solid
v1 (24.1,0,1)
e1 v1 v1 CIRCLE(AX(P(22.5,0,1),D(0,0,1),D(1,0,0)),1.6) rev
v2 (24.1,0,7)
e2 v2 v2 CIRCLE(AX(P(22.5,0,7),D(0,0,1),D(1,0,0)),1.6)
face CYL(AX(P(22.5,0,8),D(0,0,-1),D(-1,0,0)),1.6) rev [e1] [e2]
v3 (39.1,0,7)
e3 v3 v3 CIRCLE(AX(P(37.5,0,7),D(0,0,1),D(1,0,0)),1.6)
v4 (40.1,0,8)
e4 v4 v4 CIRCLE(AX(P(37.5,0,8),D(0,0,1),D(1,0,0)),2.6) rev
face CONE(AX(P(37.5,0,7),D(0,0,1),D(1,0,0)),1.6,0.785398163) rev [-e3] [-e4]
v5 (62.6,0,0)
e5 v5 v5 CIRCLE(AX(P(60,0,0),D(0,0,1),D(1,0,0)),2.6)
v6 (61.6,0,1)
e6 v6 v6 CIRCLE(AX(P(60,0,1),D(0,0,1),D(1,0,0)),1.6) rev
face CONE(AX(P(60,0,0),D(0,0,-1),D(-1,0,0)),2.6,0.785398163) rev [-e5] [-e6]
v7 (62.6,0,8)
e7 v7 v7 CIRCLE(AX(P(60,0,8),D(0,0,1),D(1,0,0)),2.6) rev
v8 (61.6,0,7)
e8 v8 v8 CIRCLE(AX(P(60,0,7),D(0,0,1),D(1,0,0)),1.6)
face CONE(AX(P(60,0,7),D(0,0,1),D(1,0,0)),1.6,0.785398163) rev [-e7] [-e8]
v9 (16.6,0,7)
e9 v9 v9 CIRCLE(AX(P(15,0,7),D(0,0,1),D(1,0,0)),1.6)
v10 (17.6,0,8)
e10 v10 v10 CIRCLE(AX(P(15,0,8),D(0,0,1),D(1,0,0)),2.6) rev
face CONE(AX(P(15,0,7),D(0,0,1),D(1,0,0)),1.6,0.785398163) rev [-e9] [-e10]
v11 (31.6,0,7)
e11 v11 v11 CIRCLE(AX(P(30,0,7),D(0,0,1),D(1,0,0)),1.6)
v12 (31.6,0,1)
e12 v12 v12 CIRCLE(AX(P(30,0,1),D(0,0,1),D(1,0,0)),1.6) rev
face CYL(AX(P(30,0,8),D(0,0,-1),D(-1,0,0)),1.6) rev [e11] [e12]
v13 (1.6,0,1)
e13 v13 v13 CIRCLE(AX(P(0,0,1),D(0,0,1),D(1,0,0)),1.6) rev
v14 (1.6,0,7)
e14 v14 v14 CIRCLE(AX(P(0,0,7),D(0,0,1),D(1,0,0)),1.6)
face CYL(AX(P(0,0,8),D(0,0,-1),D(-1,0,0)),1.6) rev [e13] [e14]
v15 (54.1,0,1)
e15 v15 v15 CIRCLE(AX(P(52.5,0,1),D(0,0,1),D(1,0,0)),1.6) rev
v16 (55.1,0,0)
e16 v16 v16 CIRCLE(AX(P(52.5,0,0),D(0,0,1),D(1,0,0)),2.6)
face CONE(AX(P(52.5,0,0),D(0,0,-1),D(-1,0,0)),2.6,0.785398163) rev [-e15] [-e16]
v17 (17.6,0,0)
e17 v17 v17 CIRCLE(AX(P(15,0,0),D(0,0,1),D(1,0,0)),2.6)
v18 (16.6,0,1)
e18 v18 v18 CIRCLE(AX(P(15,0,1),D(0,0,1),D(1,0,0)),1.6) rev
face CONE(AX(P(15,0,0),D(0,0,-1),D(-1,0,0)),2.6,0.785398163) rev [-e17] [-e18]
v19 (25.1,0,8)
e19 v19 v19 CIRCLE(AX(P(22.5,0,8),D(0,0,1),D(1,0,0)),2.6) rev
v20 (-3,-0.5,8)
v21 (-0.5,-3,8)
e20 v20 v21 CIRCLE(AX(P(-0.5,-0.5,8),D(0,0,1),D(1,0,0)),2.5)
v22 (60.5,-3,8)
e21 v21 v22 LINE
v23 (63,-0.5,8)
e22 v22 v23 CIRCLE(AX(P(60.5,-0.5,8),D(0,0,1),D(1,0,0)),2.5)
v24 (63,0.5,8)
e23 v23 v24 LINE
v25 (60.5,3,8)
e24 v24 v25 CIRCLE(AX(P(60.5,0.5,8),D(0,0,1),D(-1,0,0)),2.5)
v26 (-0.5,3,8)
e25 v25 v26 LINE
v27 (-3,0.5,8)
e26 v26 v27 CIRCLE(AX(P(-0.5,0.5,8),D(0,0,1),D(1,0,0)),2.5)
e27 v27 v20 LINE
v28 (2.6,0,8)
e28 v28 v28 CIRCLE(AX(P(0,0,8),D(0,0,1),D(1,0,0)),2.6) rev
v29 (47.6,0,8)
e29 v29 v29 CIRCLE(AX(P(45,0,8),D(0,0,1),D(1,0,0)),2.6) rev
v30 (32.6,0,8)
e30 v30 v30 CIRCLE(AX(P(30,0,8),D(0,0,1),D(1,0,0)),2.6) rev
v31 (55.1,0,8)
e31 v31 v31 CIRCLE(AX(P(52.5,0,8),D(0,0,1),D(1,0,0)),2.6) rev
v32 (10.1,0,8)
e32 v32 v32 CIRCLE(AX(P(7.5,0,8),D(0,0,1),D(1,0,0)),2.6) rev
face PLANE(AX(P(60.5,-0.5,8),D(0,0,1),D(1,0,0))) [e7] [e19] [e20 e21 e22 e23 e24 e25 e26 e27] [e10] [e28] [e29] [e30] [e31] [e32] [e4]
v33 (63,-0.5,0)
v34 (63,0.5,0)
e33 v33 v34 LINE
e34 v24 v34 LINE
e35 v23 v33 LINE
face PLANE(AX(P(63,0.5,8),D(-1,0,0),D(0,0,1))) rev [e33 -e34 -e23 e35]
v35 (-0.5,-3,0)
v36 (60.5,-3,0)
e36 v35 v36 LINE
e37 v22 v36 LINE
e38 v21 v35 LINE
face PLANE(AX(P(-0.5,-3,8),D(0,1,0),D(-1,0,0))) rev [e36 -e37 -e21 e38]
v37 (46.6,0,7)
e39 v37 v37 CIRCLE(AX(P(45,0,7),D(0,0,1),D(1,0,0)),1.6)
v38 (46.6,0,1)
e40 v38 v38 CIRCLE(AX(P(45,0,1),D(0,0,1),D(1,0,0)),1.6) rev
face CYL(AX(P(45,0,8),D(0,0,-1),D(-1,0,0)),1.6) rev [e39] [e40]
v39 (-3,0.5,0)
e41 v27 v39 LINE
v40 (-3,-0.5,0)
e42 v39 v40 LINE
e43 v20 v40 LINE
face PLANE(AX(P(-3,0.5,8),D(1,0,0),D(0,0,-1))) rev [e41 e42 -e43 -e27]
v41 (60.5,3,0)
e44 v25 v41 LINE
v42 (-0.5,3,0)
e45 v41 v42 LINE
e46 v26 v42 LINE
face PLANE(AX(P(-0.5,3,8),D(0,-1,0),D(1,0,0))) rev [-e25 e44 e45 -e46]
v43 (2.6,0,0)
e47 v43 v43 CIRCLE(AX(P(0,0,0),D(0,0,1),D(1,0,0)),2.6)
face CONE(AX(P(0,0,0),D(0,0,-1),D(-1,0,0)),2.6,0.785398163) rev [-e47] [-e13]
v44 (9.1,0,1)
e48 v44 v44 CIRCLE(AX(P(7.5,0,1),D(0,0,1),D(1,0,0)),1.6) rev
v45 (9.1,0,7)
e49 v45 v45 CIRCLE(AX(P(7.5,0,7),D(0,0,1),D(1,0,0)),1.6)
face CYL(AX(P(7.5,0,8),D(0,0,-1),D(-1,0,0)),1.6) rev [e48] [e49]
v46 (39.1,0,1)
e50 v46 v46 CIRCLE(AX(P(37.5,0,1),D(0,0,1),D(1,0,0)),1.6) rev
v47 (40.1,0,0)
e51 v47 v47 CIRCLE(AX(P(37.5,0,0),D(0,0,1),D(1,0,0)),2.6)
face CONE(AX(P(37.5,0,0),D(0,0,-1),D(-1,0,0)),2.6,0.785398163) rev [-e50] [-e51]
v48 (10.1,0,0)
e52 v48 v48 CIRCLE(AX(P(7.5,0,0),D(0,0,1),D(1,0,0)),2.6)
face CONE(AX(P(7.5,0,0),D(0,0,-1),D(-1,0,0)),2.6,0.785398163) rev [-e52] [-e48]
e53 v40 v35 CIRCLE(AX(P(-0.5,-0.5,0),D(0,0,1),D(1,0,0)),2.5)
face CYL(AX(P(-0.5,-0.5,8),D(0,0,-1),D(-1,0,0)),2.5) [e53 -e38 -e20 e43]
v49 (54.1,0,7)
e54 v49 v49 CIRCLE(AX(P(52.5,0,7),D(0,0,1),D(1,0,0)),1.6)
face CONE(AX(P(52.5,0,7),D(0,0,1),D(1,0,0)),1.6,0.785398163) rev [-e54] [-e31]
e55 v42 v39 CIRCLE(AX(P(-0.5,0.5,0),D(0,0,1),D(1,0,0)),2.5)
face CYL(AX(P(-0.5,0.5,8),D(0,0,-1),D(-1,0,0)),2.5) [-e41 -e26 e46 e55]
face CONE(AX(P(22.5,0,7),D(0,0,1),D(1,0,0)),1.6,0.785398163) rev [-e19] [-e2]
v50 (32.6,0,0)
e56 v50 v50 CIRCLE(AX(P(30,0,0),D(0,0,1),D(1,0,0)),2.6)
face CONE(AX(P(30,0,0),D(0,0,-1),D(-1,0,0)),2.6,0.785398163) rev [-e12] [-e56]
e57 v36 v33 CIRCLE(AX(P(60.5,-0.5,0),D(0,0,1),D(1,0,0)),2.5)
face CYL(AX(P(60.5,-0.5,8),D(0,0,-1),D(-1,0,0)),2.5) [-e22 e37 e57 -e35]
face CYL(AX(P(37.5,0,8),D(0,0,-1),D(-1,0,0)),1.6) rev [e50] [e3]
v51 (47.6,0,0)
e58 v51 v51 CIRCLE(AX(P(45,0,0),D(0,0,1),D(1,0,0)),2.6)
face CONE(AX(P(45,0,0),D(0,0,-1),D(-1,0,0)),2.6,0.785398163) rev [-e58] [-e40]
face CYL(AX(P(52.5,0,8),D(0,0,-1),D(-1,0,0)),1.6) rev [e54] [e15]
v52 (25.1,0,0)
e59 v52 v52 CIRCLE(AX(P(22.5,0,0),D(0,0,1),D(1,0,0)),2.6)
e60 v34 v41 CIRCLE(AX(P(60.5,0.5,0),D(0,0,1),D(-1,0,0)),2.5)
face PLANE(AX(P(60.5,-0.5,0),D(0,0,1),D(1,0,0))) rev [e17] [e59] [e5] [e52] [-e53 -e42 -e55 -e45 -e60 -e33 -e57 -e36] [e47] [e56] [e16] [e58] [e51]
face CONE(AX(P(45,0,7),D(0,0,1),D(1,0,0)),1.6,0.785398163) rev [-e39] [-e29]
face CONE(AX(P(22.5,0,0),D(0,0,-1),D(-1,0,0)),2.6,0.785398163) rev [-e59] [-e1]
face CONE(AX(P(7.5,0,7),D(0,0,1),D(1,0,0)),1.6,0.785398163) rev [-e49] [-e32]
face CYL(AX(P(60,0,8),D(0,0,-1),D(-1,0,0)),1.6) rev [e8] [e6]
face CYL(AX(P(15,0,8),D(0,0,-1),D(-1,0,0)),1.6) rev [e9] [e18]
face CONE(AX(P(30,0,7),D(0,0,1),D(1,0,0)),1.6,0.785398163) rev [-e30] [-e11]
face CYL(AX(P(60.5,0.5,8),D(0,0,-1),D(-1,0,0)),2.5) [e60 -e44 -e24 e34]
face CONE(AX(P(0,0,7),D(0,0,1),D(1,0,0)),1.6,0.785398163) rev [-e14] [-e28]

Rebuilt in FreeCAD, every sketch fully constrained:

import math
import FreeCAD as App
import Part
import Sketcher

V = App.Vector


def edges_at(feature, points):
    """Names of the edges that pass closest to the given points."""
    edges = feature.Shape.Edges
    near = lambda p: min(range(len(edges)), key=lambda i: edges[i].distToShape(Part.Vertex(*p))[0])
    return sorted({f"Edge{near(p) + 1}" for p in points})

doc = App.newDocument("Part")
body = doc.addObject("PartDesign::Body", "Body")

# Sketch on XY plane
sketch1 = doc.addObject("Sketcher::SketchObject", "Sketch")
body.addObject(sketch1)
sketch1.AttachmentSupport = (doc.XY_Plane, [""])
sketch1.MapMode = "FlatFace"
sketch1.addGeometry([
    Part.LineSegment(V(60.5, 3, 0), V(-0.5, 3, 0)),  # 0
    Part.ArcOfCircle(Part.Circle(V(-0.5, 0.5, 0), V(0, 0, 1), 2.5), math.radians(90), math.radians(180)),  # 1
    Part.LineSegment(V(-3, 0.5, 0), V(-3, -0.5, 0)),  # 2
    Part.ArcOfCircle(Part.Circle(V(-0.5, -0.5, 0), V(0, 0, 1), 2.5), math.radians(180), math.radians(270)),  # 3
    Part.LineSegment(V(-0.5, -3, 0), V(60.5, -3, 0)),  # 4
    Part.ArcOfCircle(Part.Circle(V(60.5, -0.5, 0), V(0, 0, 1), 2.5), math.radians(-90), math.radians(0)),  # 5
    Part.LineSegment(V(63, -0.5, 0), V(63, 0.5, 0)),  # 6
    Part.ArcOfCircle(Part.Circle(V(60.5, 0.5, 0), V(0, 0, 1), 2.5), math.radians(0), math.radians(90)),  # 7
    Part.Circle(V(60, 0, 0), V(0, 0, 1), 1.6),  # 8
    Part.Circle(V(52.5, 0, 0), V(0, 0, 1), 1.6),  # 9
    Part.Circle(V(45, 0, 0), V(0, 0, 1), 1.6),  # 10
    Part.Circle(V(37.5, 0, 0), V(0, 0, 1), 1.6),  # 11
    Part.Circle(V(30, 0, 0), V(0, 0, 1), 1.6),  # 12
    Part.Circle(V(22.5, 0, 0), V(0, 0, 1), 1.6),  # 13
    Part.Circle(V(15, 0, 0), V(0, 0, 1), 1.6),  # 14
    Part.Circle(V(7.5, 0, 0), V(0, 0, 1), 1.6),  # 15
    Part.Circle(V(0, 0, 0), V(0, 0, 1), 1.6),  # 16
], False)
sketch1.addConstraint([
    Sketcher.Constraint("Tangent", 0, 2, 1, 1),
    Sketcher.Constraint("Tangent", 1, 2, 2, 1),
    Sketcher.Constraint("Tangent", 2, 2, 3, 1),
    Sketcher.Constraint("Tangent", 3, 2, 4, 1),
    Sketcher.Constraint("Tangent", 4, 2, 5, 1),
    Sketcher.Constraint("Tangent", 5, 2, 6, 1),
    Sketcher.Constraint("Tangent", 6, 2, 7, 1),
    Sketcher.Constraint("Tangent", 7, 2, 0, 1),
    Sketcher.Constraint("Horizontal", 0),
    Sketcher.Constraint("Vertical", 2),
    Sketcher.Constraint("Horizontal", 4),
    Sketcher.Constraint("Vertical", 6),
    Sketcher.Constraint("Coincident", 16, 3, -1, 1),
    Sketcher.Constraint("Equal", 1, 3),
    Sketcher.Constraint("Equal", 3, 5),
    Sketcher.Constraint("Equal", 5, 7),
    Sketcher.Constraint("Equal", 8, 9),
    Sketcher.Constraint("Equal", 9, 10),
    Sketcher.Constraint("Equal", 10, 11),
    Sketcher.Constraint("Equal", 11, 12),
    Sketcher.Constraint("Equal", 12, 13),
    Sketcher.Constraint("Equal", 13, 14),
    Sketcher.Constraint("Equal", 14, 15),
    Sketcher.Constraint("Equal", 15, 16),
    Sketcher.Constraint("PointOnObject", 8, 3, -1),
    Sketcher.Constraint("PointOnObject", 9, 3, -1),
    Sketcher.Constraint("PointOnObject", 10, 3, -1),
    Sketcher.Constraint("PointOnObject", 11, 3, -1),
    Sketcher.Constraint("PointOnObject", 12, 3, -1),
    Sketcher.Constraint("PointOnObject", 13, 3, -1),
    Sketcher.Constraint("PointOnObject", 14, 3, -1),
    Sketcher.Constraint("PointOnObject", 15, 3, -1),
    Sketcher.Constraint("Diameter", 8, 3.2),
    Sketcher.Constraint("Radius", 1, 2.5),
    Sketcher.Constraint("DistanceX", 0, 2, 0, 1, 61.0),
    Sketcher.Constraint("DistanceY", 2, 2, 2, 1, 1.0),
    Sketcher.Constraint("DistanceX", -1, 1, 8, 3, 60.0),
    Sketcher.Constraint("DistanceX", -1, 1, 10, 3, 45.0),
    Sketcher.Constraint("DistanceX", -1, 1, 12, 3, 30.0),
    Sketcher.Constraint("DistanceX", -1, 1, 14, 3, 15.0),
    Sketcher.Constraint("DistanceY", -1, 1, 0, 2, 3.0),
    Sketcher.Constraint("DistanceX", 1, 2, -1, 1, 3.0),
    Sketcher.Constraint("DistanceX", 9, 3, 5, 3, 8.0),
    Sketcher.Constraint("DistanceX", 11, 3, 9, 3, 15.0),
    Sketcher.Constraint("DistanceX", 13, 3, 11, 3, 15.0),
    Sketcher.Constraint("DistanceX", 1, 3, 15, 3, 8.0),
])
pad1 = doc.addObject("PartDesign::Pad", "Pad")
body.addObject(pad1)
pad1.Profile = sketch1
pad1.Length = 8
doc.recompute()

chamfer = doc.addObject("PartDesign::Chamfer", "Chamfer")
body.addObject(chamfer)
chamfer.Base = (pad1, edges_at(pad1, [
    (-1.6, 0, 0),
    (-1.6, 0, 8),
    (5.9, 0, 0),
    (5.9, 0, 8),
    (13.4, 0, 0),
    (13.4, 0, 8),
    (20.9, 0, 0),
    (20.9, 0, 8),
    (28.4, 0, 0),
    (28.4, 0, 8),
    (35.9, 0, 0),
    (35.9, 0, 8),
    (43.4, 0, 0),
    (43.4, 0, 8),
    (50.9, 0, 0),
    (50.9, 0, 8),
    (58.4, 0, 0),
    (58.4, 0, 8),
]))
chamfer.Size = 1

doc.recompute()
